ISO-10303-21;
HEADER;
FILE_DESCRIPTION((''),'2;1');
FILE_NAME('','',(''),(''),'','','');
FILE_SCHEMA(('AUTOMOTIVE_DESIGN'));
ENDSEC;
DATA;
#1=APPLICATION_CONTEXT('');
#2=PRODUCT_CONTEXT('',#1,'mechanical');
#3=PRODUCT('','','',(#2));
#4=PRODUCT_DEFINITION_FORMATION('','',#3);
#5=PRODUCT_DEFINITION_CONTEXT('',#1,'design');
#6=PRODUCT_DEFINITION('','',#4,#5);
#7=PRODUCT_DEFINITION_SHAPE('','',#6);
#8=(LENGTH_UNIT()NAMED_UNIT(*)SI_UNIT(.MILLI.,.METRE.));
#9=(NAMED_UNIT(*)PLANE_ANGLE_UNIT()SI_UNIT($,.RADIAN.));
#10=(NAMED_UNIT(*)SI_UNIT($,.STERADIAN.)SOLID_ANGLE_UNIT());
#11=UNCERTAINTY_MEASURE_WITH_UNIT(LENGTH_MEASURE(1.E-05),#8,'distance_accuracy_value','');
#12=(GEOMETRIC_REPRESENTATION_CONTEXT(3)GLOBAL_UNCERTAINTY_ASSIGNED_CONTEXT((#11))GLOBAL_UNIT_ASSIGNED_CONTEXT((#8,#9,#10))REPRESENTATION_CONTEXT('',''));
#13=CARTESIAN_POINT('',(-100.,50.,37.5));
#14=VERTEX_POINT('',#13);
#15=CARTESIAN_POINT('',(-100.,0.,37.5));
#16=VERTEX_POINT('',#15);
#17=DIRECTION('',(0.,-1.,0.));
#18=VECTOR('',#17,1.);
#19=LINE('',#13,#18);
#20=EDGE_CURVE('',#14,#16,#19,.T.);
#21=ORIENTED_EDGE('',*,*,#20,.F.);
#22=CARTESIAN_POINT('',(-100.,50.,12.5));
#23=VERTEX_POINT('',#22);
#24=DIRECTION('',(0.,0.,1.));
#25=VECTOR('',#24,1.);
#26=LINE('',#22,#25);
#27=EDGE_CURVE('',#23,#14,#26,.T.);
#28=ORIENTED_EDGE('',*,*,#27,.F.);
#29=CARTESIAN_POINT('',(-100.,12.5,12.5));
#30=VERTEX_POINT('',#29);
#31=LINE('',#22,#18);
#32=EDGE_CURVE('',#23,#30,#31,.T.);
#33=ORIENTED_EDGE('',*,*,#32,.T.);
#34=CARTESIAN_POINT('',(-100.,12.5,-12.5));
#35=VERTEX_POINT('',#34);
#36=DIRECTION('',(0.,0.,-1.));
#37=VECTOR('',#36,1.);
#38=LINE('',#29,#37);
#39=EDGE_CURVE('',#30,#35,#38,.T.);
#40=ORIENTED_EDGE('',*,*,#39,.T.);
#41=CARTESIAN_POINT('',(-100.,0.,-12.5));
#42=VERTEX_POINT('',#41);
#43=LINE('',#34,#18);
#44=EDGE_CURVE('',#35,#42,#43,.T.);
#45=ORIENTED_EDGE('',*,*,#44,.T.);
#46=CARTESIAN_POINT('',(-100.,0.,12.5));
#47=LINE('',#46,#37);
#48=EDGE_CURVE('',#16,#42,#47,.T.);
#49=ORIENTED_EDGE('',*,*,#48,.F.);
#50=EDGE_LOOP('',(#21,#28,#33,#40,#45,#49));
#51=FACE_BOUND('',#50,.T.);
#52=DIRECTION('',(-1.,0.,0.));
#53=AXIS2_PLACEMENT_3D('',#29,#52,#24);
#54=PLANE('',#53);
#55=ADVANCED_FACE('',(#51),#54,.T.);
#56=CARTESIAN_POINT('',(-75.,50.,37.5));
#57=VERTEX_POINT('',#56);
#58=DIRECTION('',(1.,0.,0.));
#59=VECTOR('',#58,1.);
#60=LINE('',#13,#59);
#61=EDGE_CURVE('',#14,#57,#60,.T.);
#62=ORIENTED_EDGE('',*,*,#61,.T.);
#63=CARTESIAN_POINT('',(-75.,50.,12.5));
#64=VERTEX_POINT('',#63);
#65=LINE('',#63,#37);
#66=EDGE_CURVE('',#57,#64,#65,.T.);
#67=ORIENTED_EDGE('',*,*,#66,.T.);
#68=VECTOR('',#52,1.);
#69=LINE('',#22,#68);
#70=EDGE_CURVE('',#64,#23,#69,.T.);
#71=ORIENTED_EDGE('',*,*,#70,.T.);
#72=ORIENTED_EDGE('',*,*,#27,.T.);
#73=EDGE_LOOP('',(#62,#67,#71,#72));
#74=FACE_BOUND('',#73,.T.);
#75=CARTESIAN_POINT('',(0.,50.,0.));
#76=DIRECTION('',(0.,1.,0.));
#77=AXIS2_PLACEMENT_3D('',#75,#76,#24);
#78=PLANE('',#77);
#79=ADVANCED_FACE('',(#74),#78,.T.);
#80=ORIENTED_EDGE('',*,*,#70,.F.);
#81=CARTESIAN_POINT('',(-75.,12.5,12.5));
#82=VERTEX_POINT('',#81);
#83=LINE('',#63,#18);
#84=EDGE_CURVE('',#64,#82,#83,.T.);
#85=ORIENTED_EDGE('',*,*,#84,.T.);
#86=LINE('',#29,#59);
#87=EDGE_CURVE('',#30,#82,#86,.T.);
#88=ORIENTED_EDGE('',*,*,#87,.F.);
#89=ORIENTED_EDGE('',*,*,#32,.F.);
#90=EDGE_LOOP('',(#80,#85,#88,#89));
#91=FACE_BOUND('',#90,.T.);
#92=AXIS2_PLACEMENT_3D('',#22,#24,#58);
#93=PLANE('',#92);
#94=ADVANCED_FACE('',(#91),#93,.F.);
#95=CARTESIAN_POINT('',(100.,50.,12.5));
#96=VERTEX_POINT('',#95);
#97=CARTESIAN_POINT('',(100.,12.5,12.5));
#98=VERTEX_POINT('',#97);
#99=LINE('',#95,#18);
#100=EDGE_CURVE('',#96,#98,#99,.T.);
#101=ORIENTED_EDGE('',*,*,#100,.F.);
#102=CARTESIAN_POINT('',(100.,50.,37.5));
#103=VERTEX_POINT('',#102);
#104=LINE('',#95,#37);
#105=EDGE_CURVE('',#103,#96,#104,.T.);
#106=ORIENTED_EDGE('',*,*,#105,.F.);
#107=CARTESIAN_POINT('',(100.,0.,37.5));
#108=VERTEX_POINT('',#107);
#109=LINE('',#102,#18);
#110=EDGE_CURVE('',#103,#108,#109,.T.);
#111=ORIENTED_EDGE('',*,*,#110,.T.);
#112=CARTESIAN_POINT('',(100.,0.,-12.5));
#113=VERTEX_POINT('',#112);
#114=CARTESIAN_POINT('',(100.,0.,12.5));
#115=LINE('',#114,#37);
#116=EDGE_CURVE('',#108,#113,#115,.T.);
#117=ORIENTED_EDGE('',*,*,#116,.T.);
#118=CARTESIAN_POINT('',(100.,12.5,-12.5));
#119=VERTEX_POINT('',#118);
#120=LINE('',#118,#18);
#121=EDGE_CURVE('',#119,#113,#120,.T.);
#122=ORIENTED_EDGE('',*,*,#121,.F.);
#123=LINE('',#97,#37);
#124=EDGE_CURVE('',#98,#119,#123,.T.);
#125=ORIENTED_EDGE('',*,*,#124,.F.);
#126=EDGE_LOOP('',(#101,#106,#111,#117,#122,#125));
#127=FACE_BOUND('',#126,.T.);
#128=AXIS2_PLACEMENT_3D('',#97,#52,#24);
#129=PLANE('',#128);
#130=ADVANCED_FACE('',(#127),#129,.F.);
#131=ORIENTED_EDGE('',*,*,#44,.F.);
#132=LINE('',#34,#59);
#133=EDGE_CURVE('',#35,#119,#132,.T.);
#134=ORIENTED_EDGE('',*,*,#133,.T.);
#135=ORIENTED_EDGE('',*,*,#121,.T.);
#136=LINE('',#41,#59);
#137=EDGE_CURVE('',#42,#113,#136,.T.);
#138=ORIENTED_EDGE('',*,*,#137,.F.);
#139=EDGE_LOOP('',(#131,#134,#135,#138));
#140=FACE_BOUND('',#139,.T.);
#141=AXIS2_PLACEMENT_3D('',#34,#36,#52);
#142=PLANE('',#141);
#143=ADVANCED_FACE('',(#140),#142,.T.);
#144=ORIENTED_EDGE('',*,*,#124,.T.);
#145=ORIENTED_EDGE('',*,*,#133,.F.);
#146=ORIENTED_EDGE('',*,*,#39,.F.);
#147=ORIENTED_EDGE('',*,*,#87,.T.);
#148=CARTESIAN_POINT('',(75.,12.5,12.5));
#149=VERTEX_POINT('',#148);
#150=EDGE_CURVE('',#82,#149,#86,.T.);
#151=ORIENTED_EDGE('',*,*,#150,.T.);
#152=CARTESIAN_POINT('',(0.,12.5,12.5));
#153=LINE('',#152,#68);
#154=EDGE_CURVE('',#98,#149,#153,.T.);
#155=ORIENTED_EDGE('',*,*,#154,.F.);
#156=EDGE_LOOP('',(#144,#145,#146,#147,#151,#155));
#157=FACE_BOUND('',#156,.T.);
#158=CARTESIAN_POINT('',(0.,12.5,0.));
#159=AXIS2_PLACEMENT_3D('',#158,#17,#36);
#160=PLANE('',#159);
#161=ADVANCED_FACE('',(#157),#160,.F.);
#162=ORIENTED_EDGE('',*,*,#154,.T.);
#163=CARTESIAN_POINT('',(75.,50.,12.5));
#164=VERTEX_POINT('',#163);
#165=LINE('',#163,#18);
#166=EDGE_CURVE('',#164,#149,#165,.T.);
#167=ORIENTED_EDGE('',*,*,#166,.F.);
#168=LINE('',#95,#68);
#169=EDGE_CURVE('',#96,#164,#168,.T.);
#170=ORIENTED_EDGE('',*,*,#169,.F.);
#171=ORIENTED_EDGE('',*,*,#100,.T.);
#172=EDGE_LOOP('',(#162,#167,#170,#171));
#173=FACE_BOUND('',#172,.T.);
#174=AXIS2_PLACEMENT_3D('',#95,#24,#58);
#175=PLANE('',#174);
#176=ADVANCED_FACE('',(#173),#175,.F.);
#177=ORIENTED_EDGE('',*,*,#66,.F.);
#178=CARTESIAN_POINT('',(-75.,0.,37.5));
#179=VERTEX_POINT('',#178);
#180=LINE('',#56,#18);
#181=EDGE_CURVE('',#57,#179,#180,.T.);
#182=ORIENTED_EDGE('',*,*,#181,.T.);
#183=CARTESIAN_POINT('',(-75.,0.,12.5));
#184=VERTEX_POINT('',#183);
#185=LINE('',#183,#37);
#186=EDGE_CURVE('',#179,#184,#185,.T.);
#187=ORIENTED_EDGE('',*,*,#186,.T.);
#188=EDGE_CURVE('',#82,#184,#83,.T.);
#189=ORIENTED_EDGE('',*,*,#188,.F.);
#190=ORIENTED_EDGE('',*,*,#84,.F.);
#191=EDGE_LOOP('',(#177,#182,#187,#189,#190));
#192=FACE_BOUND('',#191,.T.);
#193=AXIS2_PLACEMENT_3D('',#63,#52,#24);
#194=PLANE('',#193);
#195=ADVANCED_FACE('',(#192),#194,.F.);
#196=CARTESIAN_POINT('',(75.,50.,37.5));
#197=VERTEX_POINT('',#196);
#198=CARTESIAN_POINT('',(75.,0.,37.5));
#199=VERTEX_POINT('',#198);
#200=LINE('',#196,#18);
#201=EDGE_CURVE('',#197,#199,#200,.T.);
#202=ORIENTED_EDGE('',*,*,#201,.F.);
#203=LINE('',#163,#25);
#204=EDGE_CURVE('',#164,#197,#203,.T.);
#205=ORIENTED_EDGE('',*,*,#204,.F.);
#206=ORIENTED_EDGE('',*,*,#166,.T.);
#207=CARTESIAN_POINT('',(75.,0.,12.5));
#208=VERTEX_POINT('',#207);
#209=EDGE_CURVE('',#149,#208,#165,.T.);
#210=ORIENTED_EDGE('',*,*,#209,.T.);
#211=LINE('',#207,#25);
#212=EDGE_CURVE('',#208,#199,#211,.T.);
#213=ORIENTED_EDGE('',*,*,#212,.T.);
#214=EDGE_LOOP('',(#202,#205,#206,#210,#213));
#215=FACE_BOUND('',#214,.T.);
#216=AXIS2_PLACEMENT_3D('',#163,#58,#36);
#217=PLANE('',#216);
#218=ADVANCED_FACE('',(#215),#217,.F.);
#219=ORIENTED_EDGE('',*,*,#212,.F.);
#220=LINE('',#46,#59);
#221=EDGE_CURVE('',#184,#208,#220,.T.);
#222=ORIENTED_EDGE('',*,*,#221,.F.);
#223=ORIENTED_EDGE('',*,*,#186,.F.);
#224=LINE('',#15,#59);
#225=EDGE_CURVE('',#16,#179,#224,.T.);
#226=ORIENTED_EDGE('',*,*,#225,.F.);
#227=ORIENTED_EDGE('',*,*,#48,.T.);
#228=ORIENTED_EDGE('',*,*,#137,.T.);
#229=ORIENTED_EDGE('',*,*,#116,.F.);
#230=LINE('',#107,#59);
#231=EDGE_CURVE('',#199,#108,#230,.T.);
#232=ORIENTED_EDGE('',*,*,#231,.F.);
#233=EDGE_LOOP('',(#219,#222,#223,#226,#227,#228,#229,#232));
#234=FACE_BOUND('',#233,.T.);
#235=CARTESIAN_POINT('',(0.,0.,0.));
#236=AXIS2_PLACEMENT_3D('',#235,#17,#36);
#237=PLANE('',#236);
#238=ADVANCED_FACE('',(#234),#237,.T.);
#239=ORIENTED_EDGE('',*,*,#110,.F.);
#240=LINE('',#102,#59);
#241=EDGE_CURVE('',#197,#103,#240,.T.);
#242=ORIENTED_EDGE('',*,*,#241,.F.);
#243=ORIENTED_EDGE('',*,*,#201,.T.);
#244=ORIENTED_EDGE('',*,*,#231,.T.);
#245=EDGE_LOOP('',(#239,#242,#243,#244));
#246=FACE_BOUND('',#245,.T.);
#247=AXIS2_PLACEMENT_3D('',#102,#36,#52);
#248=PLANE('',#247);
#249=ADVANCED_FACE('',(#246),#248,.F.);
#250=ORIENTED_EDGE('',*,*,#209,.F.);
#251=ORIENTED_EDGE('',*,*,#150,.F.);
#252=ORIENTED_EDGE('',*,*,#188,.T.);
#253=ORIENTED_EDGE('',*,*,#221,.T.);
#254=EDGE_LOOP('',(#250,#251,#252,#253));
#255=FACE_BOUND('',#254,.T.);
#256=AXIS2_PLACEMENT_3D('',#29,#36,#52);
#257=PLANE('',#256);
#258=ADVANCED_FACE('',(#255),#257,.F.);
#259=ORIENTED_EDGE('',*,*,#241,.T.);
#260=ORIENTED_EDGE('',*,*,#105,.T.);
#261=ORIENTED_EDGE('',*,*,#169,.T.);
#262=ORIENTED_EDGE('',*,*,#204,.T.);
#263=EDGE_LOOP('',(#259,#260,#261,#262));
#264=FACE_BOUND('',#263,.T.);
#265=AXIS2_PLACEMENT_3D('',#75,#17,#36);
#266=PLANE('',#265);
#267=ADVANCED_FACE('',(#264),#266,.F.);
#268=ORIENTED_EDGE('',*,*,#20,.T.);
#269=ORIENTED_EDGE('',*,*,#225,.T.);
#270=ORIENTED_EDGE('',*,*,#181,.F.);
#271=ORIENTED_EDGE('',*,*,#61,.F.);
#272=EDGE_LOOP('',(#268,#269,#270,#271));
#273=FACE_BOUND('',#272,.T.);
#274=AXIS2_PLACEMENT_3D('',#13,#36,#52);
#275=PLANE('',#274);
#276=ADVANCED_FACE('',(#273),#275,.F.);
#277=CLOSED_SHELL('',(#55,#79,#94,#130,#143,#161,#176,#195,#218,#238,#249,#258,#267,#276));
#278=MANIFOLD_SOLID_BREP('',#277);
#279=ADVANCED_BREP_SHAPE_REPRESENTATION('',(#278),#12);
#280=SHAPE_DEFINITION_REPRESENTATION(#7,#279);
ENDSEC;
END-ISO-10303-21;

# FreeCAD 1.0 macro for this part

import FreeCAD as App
import Part
import Sketcher
from FreeCAD import Vector

doc = App.newDocument("Part")
params = doc.addObject("Spreadsheet::Sheet", "Params")
for row, (alias, value) in enumerate([
    ("sketch1_width", "200 mm"),
    ("sketch1_height", "25 mm"),
    ("pad1_length", "12.5 mm"),
    ("sketch2_width", "25 mm"),
    ("pad2_length", "50 mm"),
], start=1):
    params.set(f"A{row}", alias)
    params.set(f"B{row}", "=" + value)
    params.setAlias(f"B{row}", alias)

body = doc.addObject("PartDesign::Body", "Body")

sketch1 = body.newObject("Sketcher::SketchObject", "Sketch")
sketch1.AttachmentSupport = (doc.getObject("XZ_Plane"), [""])
sketch1.MapMode = "FlatFace"
sketch1.addGeometry(Part.LineSegment(Vector(-100, -12.5, 0), Vector(-100, 12.5, 0)), False)
sketch1.addGeometry(Part.LineSegment(Vector(-100, 12.5, 0), Vector(100, 12.5, 0)), False)
sketch1.addGeometry(Part.LineSegment(Vector(100, 12.5, 0), Vector(100, -12.5, 0)), False)
sketch1.addGeometry(Part.LineSegment(Vector(100, -12.5, 0), Vector(-100, -12.5, 0)), False)
sketch1.addConstraint(Sketcher.Constraint("Coincident", 0, 2, 1, 1))
sketch1.addConstraint(Sketcher.Constraint("Coincident", 1, 2, 2, 1))
sketch1.addConstraint(Sketcher.Constraint("Coincident", 2, 2, 3, 1))
sketch1.addConstraint(Sketcher.Constraint("Coincident", 3, 2, 0, 1))
sketch1.addConstraint(Sketcher.Constraint("Vertical", 0))
sketch1.addConstraint(Sketcher.Constraint("Horizontal", 1))
sketch1.addConstraint(Sketcher.Constraint("Vertical", 2))
sketch1.addConstraint(Sketcher.Constraint("Horizontal", 3))
sketch1.addConstraint(Sketcher.Constraint("Symmetric", 0, 2, 2, 2, -1, 1))
sketch1.addConstraint(Sketcher.Constraint("DistanceX", 1, 1, 1, 2, 200.0))
sketch1.addConstraint(Sketcher.Constraint("DistanceY", 0, 1, 0, 2, 25.0))
sketch1.setExpression("Constraints[9]", "Params.sketch1_width")
sketch1.setExpression("Constraints[10]", "Params.sketch1_height")
pad1 = body.newObject("PartDesign::Pad", "Pad")
pad1.Profile = sketch1
pad1.setExpression("Length", "Params.pad1_length")
pad1.Reversed = True

sketch2 = body.newObject("Sketcher::SketchObject", "Sketch001")
sketch2.AttachmentSupport = (doc.getObject("XZ_Plane"), [""])
sketch2.MapMode = "FlatFace"
sketch2.addGeometry(Part.LineSegment(Vector(-100, 12.5, 0), Vector(-100, 37.5, 0)), False)
sketch2.addGeometry(Part.LineSegment(Vector(-100, 37.5, 0), Vector(-75, 37.5, 0)), False)
sketch2.addGeometry(Part.LineSegment(Vector(-75, 37.5, 0), Vector(-75, 12.5, 0)), False)
sketch2.addGeometry(Part.LineSegment(Vector(-75, 12.5, 0), Vector(-100, 12.5, 0)), False)
sketch2.addGeometry(Part.LineSegment(Vector(75, 12.5, 0), Vector(75, 37.5, 0)), False)
sketch2.addGeometry(Part.LineSegment(Vector(75, 37.5, 0), Vector(100, 37.5, 0)), False)
sketch2.addGeometry(Part.LineSegment(Vector(100, 37.5, 0), Vector(100, 12.5, 0)), False)
sketch2.addGeometry(Part.LineSegment(Vector(100, 12.5, 0), Vector(75, 12.5, 0)), False)
sketch2.addConstraint(Sketcher.Constraint("Coincident", 0, 2, 1, 1))
sketch2.addConstraint(Sketcher.Constraint("Coincident", 1, 2, 2, 1))
sketch2.addConstraint(Sketcher.Constraint("Coincident", 2, 2, 3, 1))
sketch2.addConstraint(Sketcher.Constraint("Coincident", 3, 2, 0, 1))
sketch2.addConstraint(Sketcher.Constraint("Coincident", 4, 2, 5, 1))
sketch2.addConstraint(Sketcher.Constraint("Coincident", 5, 2, 6, 1))
sketch2.addConstraint(Sketcher.Constraint("Coincident", 6, 2, 7, 1))
sketch2.addConstraint(Sketcher.Constraint("Coincident", 7, 2, 4, 1))
sketch2.addConstraint(Sketcher.Constraint("Vertical", 0))
sketch2.addConstraint(Sketcher.Constraint("Horizontal", 1))
sketch2.addConstraint(Sketcher.Constraint("Vertical", 2))
sketch2.addConstraint(Sketcher.Constraint("Horizontal", 3))
sketch2.addConstraint(Sketcher.Constraint("Vertical", 4))
sketch2.addConstraint(Sketcher.Constraint("Horizontal", 5))
sketch2.addConstraint(Sketcher.Constraint("Vertical", 6))
sketch2.addConstraint(Sketcher.Constraint("Horizontal", 7))
sketch2.addConstraint(Sketcher.Constraint("Symmetric", 1, 2, 4, 2, -2))
sketch2.addConstraint(Sketcher.Constraint("Symmetric", 3, 2, 6, 2, -2))
sketch2.addConstraint(Sketcher.Constraint("Equal", 7, 0))
sketch2.addConstraint(Sketcher.Constraint("DistanceX", 1, 1, 1, 2, 25.0))
sketch2.addConstraint(Sketcher.Constraint("DistanceX", 0, 2, -1, 1, 100.0))
sketch2.addConstraint(Sketcher.Constraint("DistanceY", -1, 1, 0, 2, 37.5))
sketch2.setExpression("Constraints[19]", "Params.sketch2_width")
pad2 = body.newObject("PartDesign::Pad", "Pad001")
pad2.Profile = sketch2
pad2.setExpression("Length", "Params.pad2_length")
pad2.Reversed = True

doc.recompute()
